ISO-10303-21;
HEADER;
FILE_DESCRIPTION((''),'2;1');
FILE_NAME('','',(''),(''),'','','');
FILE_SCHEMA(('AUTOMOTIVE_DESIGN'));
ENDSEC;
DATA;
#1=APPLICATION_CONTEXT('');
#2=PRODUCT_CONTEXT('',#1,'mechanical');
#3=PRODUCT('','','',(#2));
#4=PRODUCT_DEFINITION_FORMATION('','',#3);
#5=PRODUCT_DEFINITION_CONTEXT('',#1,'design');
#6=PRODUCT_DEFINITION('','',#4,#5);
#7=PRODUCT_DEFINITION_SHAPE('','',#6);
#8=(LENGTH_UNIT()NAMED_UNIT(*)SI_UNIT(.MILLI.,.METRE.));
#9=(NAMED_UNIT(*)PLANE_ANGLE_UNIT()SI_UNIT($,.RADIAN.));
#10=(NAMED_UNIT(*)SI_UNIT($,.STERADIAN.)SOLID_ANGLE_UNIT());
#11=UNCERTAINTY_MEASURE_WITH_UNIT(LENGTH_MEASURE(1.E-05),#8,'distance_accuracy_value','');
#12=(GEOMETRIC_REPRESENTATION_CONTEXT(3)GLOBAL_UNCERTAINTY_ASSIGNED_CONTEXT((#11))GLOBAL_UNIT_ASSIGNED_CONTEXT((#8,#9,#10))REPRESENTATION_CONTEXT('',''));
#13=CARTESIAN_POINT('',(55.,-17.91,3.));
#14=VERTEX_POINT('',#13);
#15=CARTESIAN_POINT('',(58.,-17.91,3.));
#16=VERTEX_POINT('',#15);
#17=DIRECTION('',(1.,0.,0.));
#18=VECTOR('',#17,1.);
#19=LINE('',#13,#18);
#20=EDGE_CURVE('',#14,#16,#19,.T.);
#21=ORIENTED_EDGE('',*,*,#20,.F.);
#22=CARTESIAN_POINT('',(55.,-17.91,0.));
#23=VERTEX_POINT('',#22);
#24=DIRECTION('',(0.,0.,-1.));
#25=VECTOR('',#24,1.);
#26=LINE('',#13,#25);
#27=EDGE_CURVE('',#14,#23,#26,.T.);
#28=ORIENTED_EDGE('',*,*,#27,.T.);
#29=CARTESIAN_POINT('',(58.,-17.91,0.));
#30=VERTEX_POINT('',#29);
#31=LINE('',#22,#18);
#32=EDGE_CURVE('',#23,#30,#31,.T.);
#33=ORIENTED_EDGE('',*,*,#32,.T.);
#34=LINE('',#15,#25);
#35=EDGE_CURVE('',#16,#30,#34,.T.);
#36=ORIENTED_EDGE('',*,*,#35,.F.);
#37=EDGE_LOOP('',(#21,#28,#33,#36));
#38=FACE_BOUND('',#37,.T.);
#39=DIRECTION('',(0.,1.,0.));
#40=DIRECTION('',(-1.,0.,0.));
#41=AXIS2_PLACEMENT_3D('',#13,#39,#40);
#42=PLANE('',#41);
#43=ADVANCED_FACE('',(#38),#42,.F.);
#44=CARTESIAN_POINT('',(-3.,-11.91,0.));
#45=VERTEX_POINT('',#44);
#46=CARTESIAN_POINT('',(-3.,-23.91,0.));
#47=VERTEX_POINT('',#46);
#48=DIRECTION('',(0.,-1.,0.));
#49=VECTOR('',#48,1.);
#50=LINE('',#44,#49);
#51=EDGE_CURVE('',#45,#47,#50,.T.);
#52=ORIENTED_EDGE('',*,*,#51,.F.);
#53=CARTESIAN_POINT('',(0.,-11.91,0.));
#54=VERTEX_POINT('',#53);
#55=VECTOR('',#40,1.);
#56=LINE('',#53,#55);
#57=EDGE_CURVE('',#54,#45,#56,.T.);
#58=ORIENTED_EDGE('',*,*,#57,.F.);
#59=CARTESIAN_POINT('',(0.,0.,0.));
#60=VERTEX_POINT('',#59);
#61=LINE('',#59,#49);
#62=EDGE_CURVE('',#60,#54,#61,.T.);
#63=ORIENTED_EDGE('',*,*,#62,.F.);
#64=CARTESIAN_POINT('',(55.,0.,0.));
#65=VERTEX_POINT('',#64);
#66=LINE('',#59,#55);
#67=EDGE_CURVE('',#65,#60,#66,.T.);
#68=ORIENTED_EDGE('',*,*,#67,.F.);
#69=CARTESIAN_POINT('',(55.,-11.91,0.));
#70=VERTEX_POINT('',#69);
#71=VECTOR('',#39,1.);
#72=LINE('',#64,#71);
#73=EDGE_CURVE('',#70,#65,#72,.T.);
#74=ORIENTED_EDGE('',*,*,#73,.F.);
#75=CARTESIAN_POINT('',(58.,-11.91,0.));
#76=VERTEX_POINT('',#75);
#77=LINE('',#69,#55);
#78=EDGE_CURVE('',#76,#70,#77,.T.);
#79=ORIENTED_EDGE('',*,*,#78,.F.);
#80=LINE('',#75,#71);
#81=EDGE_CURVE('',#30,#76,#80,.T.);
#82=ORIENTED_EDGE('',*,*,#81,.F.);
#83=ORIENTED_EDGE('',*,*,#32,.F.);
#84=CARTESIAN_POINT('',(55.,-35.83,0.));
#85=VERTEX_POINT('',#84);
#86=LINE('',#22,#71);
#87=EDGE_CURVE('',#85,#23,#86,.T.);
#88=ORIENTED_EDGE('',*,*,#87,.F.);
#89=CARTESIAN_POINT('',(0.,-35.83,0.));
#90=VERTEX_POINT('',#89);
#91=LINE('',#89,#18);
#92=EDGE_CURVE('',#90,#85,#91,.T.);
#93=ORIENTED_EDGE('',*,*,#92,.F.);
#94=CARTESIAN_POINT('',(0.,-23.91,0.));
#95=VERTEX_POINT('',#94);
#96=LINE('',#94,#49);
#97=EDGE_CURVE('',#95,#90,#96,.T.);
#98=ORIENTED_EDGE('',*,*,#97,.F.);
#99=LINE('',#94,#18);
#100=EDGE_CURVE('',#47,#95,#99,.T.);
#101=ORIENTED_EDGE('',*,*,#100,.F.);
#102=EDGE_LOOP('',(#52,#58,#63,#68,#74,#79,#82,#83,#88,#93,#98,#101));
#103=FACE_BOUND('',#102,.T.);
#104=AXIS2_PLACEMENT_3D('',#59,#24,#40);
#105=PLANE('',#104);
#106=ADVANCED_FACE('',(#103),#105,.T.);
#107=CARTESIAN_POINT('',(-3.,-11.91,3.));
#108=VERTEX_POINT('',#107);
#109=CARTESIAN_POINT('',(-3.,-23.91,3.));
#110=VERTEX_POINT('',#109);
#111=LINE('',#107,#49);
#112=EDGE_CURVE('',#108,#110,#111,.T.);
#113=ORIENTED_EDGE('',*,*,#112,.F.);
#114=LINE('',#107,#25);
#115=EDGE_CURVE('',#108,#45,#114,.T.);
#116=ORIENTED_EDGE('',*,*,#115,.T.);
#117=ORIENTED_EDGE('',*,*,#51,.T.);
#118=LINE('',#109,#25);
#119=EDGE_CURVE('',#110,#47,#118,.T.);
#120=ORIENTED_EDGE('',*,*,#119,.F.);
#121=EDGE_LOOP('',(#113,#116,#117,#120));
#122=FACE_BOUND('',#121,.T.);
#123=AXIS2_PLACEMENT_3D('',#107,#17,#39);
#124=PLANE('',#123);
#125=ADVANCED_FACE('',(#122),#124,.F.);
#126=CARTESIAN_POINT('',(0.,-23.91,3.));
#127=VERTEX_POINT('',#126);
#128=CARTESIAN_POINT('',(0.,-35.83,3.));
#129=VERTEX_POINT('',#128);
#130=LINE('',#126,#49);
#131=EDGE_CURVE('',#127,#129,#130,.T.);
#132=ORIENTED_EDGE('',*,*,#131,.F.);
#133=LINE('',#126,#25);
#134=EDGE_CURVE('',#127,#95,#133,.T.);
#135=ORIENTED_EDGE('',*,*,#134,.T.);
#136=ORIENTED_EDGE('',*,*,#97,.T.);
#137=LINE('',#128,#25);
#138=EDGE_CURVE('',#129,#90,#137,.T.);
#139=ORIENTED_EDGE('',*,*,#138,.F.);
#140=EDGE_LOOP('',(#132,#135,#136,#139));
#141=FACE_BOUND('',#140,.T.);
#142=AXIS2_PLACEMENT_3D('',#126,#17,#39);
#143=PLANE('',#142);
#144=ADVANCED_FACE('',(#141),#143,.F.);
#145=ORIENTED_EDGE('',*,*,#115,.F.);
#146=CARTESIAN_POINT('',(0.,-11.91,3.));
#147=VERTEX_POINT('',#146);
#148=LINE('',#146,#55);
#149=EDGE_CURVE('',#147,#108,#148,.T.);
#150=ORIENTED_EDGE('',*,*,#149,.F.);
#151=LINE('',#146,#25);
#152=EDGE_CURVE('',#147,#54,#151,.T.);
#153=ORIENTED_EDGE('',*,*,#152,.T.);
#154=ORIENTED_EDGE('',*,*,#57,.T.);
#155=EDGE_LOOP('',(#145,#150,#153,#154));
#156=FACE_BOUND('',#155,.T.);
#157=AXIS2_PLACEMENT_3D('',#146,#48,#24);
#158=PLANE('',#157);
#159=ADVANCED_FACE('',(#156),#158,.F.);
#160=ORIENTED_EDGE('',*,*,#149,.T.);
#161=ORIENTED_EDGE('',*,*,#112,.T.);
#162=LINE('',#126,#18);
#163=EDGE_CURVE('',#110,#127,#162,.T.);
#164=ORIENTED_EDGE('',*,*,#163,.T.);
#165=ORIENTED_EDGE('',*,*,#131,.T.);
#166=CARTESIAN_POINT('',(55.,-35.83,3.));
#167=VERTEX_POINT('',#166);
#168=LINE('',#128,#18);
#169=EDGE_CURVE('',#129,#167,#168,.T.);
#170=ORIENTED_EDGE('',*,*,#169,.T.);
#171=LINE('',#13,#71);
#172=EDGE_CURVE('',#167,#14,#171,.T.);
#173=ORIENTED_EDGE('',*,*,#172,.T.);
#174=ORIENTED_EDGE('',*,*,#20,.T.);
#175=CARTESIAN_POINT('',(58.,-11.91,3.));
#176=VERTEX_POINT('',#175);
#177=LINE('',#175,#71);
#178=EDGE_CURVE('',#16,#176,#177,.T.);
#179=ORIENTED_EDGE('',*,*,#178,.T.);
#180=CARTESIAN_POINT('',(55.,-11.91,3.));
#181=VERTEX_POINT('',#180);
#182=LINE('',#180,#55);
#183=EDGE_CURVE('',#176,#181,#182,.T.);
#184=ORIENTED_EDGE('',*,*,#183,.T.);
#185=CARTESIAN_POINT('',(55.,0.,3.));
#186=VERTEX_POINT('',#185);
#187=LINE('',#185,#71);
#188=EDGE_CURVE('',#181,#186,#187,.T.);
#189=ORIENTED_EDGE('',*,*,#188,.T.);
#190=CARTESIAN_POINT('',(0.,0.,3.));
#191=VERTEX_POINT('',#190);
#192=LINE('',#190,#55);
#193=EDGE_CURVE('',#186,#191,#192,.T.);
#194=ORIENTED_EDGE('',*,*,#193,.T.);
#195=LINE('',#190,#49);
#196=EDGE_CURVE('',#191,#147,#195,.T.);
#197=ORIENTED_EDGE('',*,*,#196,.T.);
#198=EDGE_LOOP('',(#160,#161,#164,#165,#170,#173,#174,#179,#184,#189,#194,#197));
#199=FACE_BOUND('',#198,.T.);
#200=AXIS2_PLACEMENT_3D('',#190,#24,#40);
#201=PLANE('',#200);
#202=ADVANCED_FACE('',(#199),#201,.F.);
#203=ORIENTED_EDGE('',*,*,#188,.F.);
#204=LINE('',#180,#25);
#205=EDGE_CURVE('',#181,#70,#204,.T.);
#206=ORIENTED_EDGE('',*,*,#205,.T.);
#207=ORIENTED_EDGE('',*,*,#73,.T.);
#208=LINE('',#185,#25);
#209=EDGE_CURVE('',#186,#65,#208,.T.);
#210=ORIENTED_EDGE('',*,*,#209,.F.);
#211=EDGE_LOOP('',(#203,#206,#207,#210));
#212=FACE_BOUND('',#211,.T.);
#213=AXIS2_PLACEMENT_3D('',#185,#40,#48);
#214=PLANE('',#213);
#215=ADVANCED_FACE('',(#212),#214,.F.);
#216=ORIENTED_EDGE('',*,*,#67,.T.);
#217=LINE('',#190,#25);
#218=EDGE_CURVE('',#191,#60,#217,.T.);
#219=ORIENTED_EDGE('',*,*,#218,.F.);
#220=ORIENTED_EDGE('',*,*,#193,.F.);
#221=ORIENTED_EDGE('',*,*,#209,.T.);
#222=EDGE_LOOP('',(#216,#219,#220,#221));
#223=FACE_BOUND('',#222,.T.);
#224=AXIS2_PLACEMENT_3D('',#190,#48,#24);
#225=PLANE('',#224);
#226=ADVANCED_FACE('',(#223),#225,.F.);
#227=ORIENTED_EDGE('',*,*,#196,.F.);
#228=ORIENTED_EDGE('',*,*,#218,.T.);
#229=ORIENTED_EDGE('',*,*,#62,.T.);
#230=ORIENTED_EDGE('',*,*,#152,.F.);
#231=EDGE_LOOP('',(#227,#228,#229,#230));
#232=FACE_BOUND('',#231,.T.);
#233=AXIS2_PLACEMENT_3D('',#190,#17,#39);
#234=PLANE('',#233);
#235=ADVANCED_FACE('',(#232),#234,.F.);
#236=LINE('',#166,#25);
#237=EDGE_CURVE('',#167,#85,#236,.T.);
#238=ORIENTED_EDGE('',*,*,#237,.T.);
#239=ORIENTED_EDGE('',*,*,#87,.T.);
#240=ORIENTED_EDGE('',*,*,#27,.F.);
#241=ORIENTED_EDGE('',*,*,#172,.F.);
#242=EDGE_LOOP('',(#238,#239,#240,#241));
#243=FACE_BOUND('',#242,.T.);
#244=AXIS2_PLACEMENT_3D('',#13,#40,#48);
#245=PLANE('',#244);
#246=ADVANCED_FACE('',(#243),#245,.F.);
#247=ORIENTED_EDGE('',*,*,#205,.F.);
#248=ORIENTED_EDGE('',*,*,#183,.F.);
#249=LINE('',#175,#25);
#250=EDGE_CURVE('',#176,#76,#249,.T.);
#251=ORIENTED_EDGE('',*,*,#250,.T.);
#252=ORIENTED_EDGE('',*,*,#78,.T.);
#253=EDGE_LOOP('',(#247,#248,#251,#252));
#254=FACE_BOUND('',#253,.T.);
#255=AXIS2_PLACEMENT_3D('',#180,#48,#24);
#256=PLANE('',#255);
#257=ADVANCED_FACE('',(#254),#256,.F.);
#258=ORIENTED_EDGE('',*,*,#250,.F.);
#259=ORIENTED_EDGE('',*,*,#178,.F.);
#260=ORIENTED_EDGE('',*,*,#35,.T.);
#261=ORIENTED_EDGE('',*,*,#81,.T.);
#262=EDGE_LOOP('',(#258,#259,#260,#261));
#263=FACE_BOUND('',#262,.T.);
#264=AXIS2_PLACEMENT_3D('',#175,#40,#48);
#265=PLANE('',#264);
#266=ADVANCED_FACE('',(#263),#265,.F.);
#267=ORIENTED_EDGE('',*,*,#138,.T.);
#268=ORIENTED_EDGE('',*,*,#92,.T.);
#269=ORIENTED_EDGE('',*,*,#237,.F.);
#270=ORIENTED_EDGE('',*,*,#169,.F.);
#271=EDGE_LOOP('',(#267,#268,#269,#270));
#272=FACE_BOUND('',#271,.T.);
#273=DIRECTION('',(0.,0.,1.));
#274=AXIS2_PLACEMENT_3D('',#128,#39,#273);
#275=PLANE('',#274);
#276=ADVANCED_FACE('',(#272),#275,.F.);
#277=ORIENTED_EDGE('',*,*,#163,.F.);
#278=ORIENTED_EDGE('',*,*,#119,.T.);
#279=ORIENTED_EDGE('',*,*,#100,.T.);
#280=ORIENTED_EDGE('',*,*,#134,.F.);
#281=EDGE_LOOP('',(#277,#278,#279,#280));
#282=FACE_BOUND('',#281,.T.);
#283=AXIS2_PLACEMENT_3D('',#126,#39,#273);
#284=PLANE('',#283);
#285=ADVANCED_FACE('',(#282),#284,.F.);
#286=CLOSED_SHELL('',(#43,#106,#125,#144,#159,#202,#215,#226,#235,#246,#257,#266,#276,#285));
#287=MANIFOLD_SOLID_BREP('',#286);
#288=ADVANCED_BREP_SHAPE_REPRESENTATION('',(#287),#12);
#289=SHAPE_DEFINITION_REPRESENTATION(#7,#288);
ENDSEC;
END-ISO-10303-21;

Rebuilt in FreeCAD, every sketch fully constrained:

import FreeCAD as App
import Part
import Sketcher
Q = App.Units.Quantity


def add_polygon(sketch, points):
    """Adds a closed chain of lines whose ends are joined by coincident constraints."""
    first, n = sketch.GeometryCount, len(points)
    for a, b in zip(points, points[1:] + points[:1]):
        sketch.addGeometry(Part.LineSegment(App.Vector(*a, 0), App.Vector(*b, 0)), False)
    for i in range(n):
        sketch.addConstraint(Sketcher.Constraint("Coincident", first + i, 2, first + (i + 1) % n, 1))

doc = App.newDocument("Part")
body = doc.addObject("PartDesign::Body", "Body")

# Sketch on XY plane
sketch1 = body.newObject("Sketcher::SketchObject", "Sketch")
sketch1.AttachmentSupport = (doc.getObject("XY_Plane"), [""])
sketch1.MapMode = "FlatFace"
add_polygon(sketch1, [(55, -35.83), (55, -17.91), (58, -17.91), (58, -11.91), (55, -11.91), (55, 0), (0, 0), (0, -11.91), (-3, -11.91), (-3, -23.91), (0, -23.91), (0, -35.83)])  # lines 0-11
sketch1.addConstraint([
    Sketcher.Constraint("Vertical", 0),
    Sketcher.Constraint("Horizontal", 1),
    Sketcher.Constraint("Vertical", 2),
    Sketcher.Constraint("Horizontal", 3),
    Sketcher.Constraint("Vertical", 4),
    Sketcher.Constraint("Horizontal", 5),
    Sketcher.Constraint("Vertical", 6),
    Sketcher.Constraint("Horizontal", 7),
    Sketcher.Constraint("Vertical", 8),
    Sketcher.Constraint("Horizontal", 9),
    Sketcher.Constraint("Vertical", 10),
    Sketcher.Constraint("Horizontal", 11),
    Sketcher.Constraint("Coincident", 5, 2, -1, 1),
    Sketcher.Constraint("PointOnObject", 9, 2, -2),
    Sketcher.Constraint("Horizontal", 3, 2, 6, 2),
    Sketcher.Constraint("Vertical", 0, 2, 3, 2),
    Sketcher.Constraint("Equal", 3, 7),
    Sketcher.Constraint("DistanceX", 1, 1, 1, 2, Q("3 mm")),
    Sketcher.Constraint("DistanceX", 5, 2, 5, 1, Q("55 mm")),
    Sketcher.Constraint("DistanceY", 2, 1, 2, 2, Q("6 mm")),
    Sketcher.Constraint("DistanceY", 8, 2, 8, 1, Q("12 mm")),
    Sketcher.Constraint("DistanceY", 0, 1, 0, 2, Q("17.92 mm")),
    Sketcher.Constraint("DistanceY", 4, 1, 4, 2, Q("11.91 mm")),
])
pad1 = body.newObject("PartDesign::Pad", "Pad")
pad1.Profile = sketch1
pad1.Length = 3

doc.recompute()
